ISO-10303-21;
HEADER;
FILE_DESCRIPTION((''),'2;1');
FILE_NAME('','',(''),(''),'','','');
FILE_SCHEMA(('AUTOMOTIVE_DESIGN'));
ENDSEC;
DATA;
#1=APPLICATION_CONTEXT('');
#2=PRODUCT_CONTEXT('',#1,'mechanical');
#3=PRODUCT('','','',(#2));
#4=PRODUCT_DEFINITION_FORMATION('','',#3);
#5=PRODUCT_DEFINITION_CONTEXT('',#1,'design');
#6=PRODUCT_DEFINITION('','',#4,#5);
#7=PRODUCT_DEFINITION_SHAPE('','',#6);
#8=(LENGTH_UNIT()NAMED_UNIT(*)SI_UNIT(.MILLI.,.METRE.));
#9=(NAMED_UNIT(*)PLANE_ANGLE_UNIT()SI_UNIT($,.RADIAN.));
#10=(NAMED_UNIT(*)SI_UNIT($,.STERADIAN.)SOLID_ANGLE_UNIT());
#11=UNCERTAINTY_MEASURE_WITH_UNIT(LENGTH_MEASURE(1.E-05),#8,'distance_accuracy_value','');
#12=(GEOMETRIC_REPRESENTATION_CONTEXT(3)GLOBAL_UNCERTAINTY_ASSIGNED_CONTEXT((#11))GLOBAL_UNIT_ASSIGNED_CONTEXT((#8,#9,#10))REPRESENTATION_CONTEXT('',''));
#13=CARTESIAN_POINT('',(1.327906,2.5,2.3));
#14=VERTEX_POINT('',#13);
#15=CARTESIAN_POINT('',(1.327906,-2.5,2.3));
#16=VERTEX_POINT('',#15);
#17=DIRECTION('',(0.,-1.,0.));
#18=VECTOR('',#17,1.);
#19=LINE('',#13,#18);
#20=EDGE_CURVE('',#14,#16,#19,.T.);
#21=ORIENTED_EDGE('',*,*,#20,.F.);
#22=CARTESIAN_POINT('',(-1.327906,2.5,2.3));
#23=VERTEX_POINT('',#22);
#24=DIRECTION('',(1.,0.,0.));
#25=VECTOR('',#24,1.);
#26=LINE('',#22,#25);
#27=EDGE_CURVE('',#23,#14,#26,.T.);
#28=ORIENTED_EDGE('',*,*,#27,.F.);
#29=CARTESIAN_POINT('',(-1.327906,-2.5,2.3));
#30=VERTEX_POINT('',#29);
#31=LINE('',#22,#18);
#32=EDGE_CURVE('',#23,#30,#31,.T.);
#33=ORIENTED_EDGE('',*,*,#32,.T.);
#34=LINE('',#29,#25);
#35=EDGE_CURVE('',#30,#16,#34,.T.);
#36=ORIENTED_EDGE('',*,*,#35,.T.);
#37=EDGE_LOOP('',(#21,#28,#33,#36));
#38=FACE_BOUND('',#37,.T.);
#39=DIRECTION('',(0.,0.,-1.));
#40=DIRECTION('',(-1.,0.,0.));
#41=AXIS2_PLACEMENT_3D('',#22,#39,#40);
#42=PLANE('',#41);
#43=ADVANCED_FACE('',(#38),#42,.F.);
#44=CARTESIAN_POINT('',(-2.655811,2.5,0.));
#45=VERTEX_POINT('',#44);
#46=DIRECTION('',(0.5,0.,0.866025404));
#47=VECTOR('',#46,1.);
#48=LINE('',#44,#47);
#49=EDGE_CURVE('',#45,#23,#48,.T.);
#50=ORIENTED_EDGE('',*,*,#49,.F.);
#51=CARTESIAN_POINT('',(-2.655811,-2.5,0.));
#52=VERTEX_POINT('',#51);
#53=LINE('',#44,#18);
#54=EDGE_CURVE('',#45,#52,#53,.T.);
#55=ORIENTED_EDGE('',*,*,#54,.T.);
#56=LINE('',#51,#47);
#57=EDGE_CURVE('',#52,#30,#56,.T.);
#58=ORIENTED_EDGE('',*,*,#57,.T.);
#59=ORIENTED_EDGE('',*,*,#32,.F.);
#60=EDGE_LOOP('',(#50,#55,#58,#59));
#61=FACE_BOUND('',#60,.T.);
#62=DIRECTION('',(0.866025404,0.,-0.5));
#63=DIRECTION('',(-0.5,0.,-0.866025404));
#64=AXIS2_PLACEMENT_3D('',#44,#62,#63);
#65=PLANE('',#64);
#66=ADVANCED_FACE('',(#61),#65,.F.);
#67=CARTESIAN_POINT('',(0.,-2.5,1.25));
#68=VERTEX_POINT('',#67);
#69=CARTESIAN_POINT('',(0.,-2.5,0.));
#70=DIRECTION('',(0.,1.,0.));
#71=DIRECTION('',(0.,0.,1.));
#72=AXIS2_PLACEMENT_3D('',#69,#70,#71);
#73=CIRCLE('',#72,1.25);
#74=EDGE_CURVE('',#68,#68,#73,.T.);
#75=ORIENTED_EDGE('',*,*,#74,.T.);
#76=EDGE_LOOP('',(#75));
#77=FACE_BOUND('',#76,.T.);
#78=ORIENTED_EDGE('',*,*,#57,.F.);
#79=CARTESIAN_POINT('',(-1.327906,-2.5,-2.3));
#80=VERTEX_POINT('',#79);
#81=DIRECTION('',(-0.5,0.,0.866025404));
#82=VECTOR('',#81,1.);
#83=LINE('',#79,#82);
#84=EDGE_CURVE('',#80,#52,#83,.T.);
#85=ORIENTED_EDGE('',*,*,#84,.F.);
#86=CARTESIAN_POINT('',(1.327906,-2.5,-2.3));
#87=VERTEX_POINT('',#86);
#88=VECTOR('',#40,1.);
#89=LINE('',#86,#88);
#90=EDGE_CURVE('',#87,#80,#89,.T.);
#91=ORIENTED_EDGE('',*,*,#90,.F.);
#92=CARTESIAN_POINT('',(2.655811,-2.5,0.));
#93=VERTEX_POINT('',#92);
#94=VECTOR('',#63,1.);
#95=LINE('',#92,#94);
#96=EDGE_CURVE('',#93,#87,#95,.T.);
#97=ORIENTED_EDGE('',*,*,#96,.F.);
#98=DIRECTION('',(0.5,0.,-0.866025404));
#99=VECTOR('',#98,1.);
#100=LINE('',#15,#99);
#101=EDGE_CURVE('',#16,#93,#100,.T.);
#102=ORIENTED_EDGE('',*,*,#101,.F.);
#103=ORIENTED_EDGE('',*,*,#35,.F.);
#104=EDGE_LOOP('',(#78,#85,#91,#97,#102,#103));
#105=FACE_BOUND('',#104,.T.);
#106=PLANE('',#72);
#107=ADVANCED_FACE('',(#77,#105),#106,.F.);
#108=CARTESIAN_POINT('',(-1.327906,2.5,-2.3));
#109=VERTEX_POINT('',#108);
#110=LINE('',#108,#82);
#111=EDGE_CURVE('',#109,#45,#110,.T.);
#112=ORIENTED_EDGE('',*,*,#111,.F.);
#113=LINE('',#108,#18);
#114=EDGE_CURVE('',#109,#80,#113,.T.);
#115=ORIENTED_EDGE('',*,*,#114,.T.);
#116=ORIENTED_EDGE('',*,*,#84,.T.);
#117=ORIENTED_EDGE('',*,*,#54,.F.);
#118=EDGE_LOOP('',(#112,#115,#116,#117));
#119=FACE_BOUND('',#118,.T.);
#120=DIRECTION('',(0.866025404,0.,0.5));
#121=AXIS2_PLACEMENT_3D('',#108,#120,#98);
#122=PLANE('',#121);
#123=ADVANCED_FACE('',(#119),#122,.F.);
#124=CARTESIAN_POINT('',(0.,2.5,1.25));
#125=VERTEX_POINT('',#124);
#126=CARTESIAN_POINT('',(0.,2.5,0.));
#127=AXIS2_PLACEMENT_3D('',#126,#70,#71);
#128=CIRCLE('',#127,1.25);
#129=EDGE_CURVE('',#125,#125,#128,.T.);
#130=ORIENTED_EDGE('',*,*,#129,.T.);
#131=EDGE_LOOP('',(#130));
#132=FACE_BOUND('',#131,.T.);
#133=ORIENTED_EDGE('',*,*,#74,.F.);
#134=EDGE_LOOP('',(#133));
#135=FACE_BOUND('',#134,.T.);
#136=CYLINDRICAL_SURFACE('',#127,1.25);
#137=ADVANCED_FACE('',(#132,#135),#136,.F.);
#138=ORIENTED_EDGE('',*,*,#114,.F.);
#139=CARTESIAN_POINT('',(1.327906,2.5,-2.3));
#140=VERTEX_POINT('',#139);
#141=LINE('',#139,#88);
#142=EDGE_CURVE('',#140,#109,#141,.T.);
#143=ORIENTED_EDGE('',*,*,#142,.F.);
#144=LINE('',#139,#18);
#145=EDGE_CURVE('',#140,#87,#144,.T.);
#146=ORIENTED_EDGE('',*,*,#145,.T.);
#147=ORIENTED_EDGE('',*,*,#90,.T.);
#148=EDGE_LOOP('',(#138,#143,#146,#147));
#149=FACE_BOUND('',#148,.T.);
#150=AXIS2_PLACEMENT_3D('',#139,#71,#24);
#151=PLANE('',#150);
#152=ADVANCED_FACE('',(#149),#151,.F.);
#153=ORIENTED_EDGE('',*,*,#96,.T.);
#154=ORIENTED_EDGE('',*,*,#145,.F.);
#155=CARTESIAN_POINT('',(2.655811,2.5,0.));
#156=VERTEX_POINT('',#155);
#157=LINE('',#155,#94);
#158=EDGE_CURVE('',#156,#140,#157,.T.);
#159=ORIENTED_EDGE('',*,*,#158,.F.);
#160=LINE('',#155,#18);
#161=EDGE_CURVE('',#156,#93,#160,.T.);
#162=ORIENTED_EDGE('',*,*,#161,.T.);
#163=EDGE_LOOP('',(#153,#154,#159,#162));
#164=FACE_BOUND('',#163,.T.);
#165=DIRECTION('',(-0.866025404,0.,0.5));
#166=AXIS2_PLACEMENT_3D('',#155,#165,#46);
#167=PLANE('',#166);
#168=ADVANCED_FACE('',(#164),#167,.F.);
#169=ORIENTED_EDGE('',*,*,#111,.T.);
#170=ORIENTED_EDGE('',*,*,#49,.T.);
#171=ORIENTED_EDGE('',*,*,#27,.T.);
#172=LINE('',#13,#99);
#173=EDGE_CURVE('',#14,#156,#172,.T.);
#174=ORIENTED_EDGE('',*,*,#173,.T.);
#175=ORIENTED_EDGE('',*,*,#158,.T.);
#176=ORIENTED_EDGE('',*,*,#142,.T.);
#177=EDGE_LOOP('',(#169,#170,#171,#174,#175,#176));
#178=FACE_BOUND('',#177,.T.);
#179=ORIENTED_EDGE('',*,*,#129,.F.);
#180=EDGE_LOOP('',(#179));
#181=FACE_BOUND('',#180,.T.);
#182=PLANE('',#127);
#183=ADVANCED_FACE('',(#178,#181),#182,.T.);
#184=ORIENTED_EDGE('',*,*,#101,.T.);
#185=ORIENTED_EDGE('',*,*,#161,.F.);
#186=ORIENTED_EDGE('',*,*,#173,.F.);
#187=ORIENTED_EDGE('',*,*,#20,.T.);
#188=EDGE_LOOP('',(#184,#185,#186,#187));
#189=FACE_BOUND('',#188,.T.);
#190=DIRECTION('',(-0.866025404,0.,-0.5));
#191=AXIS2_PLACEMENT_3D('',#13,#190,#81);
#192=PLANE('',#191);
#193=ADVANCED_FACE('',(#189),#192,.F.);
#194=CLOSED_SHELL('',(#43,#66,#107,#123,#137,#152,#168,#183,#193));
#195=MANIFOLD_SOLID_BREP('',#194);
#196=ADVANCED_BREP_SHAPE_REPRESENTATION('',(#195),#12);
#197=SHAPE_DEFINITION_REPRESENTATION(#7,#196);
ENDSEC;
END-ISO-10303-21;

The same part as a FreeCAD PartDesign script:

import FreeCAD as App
import Part
import Sketcher
from FreeCAD import Vector
Q = App.Units.Quantity

doc = App.newDocument("Part")
body = doc.addObject("PartDesign::Body", "Body")

# Sketch on XZ plane
sketch1 = doc.addObject("Sketcher::SketchObject", "Sketch")
body.addObject(sketch1)
sketch1.AttachmentSupport = (doc.XZ_Plane, [""])
sketch1.MapMode = "FlatFace"
sketch1.addGeometry(Part.LineSegment(Vector(1.3, 2.3, 0), Vector(2.7, 0, 0)), False)
sketch1.addGeometry(Part.LineSegment(Vector(2.7, 0, 0), Vector(1.3, -2.3, 0)), False)
sketch1.addGeometry(Part.LineSegment(Vector(1.3, -2.3, 0), Vector(-1.3, -2.3, 0)), False)
sketch1.addGeometry(Part.LineSegment(Vector(-1.3, -2.3, 0), Vector(-2.7, 0, 0)), False)
sketch1.addGeometry(Part.LineSegment(Vector(-2.7, 0, 0), Vector(-1.3, 2.3, 0)), False)
sketch1.addGeometry(Part.LineSegment(Vector(-1.3, 2.3, 0), Vector(1.3, 2.3, 0)), False)
sketch1.addConstraint(Sketcher.Constraint("Coincident", 0, 2, 1, 1))
sketch1.addConstraint(Sketcher.Constraint("Coincident", 1, 2, 2, 1))
sketch1.addConstraint(Sketcher.Constraint("Coincident", 2, 2, 3, 1))
sketch1.addConstraint(Sketcher.Constraint("Coincident", 3, 2, 4, 1))
sketch1.addConstraint(Sketcher.Constraint("Coincident", 4, 2, 5, 1))
sketch1.addConstraint(Sketcher.Constraint("Coincident", 5, 2, 0, 1))
sketch1.addConstraint(Sketcher.Constraint("Horizontal", 2))
sketch1.addConstraint(Sketcher.Constraint("Horizontal", 5))
sketch1.addConstraint(Sketcher.Constraint("Symmetric", 0, 2, 3, 2, -1, 1))
sketch1.addConstraint(Sketcher.Constraint("Symmetric", 1, 2, 4, 2, -1, 1))
sketch1.addConstraint(Sketcher.Constraint("PointOnObject", 0, 2, -1))
sketch1.addConstraint(Sketcher.Constraint("Parallel", 0, 3))
sketch1.addConstraint(Sketcher.Constraint("Vertical", 2, 2, 4, 2))
sketch1.addConstraint(Sketcher.Constraint("Angle", 0, Q("-60 deg")))
sketch1.addConstraint(Sketcher.Constraint("DistanceY", 1, 2, -1, 1, Q("2.3 mm")))
sketch1.addConstraint(Sketcher.Constraint("DistanceX", 2, 2, 2, 1, Q("2.655811 mm")))
pad1 = doc.addObject("PartDesign::Pad", "Pad")
body.addObject(pad1)
pad1.Profile = sketch1
pad1.Length = 5
pad1.Midplane = True

# Sketch on YZ plane
sketch2 = doc.addObject("Sketcher::SketchObject", "Sketch001")
body.addObject(sketch2)
sketch2.AttachmentSupport = (doc.YZ_Plane, [""])
sketch2.MapMode = "FlatFace"
sketch2.addGeometry(Part.LineSegment(Vector(-2.5, 0, 0), Vector(2.5, 0, 0)), False)
sketch2.addGeometry(Part.LineSegment(Vector(2.5, 0, 0), Vector(2.5, 1.2, 0)), False)
sketch2.addGeometry(Part.LineSegment(Vector(2.5, 1.2, 0), Vector(-2.5, 1.2, 0)), False)
sketch2.addGeometry(Part.LineSegment(Vector(-2.5, 1.2, 0), Vector(-2.5, 0, 0)), False)
sketch2.addConstraint(Sketcher.Constraint("Coincident", 0, 2, 1, 1))
sketch2.addConstraint(Sketcher.Constraint("Coincident", 1, 2, 2, 1))
sketch2.addConstraint(Sketcher.Constraint("Coincident", 2, 2, 3, 1))
sketch2.addConstraint(Sketcher.Constraint("Coincident", 3, 2, 0, 1))
sketch2.addConstraint(Sketcher.Constraint("Horizontal", 0))
sketch2.addConstraint(Sketcher.Constraint("Vertical", 1))
sketch2.addConstraint(Sketcher.Constraint("Horizontal", 2))
sketch2.addConstraint(Sketcher.Constraint("Vertical", 3))
sketch2.addConstraint(Sketcher.Constraint("PointOnObject", 0, 2, -1))
sketch2.addConstraint(Sketcher.Constraint("DistanceY", 1, 1, 1, 2, Q("1.25 mm")))
sketch2.addConstraint(Sketcher.Constraint("DistanceX", -1, 1, 0, 2, Q("2.5 mm")))
sketch2.addConstraint(Sketcher.Constraint("DistanceX", 0, 1, 0, 2, Q("5.001 mm")))
groove = doc.addObject("PartDesign::Groove", "Groove")
body.addObject(groove)
groove.Profile = sketch2
groove.ReferenceAxis = (sketch2, ["H_Axis"])
groove.Angle = 360

doc.recompute()
